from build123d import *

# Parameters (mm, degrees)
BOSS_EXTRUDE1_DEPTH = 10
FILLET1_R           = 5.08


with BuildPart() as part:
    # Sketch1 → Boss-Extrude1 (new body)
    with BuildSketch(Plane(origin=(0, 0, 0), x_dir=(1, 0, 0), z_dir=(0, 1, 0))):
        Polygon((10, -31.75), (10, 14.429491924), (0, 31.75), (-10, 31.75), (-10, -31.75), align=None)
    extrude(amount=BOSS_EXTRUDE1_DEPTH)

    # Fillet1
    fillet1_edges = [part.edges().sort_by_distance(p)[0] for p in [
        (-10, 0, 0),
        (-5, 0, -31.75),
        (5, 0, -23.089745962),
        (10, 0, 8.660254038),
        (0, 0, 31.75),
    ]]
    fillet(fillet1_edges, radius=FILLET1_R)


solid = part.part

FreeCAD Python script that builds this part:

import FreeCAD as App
import Part
import Sketcher

V = App.Vector
Q = App.Units.Quantity


def edges_at(feature, points):
    """Names of the edges that pass closest to the given points."""
    edges = feature.Shape.Edges
    near = lambda p: min(range(len(edges)), key=lambda i: edges[i].distToShape(Part.Vertex(*p))[0])
    return sorted({f"Edge{near(p) + 1}" for p in points})

doc = App.newDocument("Part")
body = doc.addObject("PartDesign::Body", "Body")

# Sketch on XZ plane
sketch1 = doc.addObject("Sketcher::SketchObject", "Sketch")
body.addObject(sketch1)
sketch1.AttachmentSupport = (doc.XZ_Plane, [""])
sketch1.MapMode = "FlatFace"
sketch1.addGeometry([
    Part.LineSegment(V(10, 32, 0), V(10, -14, 0)),  # 0
    Part.LineSegment(V(10, -14, 0), V(0, -32, 0)),  # 1
    Part.LineSegment(V(0, -32, 0), V(-10, -32, 0)),  # 2
    Part.LineSegment(V(-10, -32, 0), V(-10, 32, 0)),  # 3
    Part.LineSegment(V(-10, 32, 0), V(10, 32, 0)),  # 4
], False)
sketch1.addConstraint([
    Sketcher.Constraint("Coincident", 0, 2, 1, 1),
    Sketcher.Constraint("Coincident", 1, 2, 2, 1),
    Sketcher.Constraint("Coincident", 2, 2, 3, 1),
    Sketcher.Constraint("Coincident", 3, 2, 4, 1),
    Sketcher.Constraint("Coincident", 4, 2, 0, 1),
    Sketcher.Constraint("Vertical", 0),
    Sketcher.Constraint("Horizontal", 2),
    Sketcher.Constraint("Vertical", 3),
    Sketcher.Constraint("Horizontal", 4),
    Sketcher.Constraint("Symmetric", 2, 2, 4, 2, -1, 1),
    Sketcher.Constraint("PointOnObject", 1, 2, -2),
    Sketcher.Constraint("DistanceX", 2, 2, 2, 1, 10.0),
    Sketcher.Constraint("Angle", 1, Q("-120 deg")),
    Sketcher.Constraint("DistanceY", 3, 1, 3, 2, 63.5),
])
pad1 = doc.addObject("PartDesign::Pad", "Pad")
body.addObject(pad1)
pad1.Profile = sketch1
pad1.Length = 10
pad1.Reversed = True
doc.recompute()

fillet = doc.addObject("PartDesign::Fillet", "Fillet")
body.addObject(fillet)
fillet.Base = (pad1, edges_at(pad1, [
    (-10, 0, 0),
    (-5, 0, -31.75),
    (5, 0, -23.09),
    (10, 0, 8.66),
    (0, 0, 31.75),
]))
fillet.Radius = 5.08

doc.recompute()
